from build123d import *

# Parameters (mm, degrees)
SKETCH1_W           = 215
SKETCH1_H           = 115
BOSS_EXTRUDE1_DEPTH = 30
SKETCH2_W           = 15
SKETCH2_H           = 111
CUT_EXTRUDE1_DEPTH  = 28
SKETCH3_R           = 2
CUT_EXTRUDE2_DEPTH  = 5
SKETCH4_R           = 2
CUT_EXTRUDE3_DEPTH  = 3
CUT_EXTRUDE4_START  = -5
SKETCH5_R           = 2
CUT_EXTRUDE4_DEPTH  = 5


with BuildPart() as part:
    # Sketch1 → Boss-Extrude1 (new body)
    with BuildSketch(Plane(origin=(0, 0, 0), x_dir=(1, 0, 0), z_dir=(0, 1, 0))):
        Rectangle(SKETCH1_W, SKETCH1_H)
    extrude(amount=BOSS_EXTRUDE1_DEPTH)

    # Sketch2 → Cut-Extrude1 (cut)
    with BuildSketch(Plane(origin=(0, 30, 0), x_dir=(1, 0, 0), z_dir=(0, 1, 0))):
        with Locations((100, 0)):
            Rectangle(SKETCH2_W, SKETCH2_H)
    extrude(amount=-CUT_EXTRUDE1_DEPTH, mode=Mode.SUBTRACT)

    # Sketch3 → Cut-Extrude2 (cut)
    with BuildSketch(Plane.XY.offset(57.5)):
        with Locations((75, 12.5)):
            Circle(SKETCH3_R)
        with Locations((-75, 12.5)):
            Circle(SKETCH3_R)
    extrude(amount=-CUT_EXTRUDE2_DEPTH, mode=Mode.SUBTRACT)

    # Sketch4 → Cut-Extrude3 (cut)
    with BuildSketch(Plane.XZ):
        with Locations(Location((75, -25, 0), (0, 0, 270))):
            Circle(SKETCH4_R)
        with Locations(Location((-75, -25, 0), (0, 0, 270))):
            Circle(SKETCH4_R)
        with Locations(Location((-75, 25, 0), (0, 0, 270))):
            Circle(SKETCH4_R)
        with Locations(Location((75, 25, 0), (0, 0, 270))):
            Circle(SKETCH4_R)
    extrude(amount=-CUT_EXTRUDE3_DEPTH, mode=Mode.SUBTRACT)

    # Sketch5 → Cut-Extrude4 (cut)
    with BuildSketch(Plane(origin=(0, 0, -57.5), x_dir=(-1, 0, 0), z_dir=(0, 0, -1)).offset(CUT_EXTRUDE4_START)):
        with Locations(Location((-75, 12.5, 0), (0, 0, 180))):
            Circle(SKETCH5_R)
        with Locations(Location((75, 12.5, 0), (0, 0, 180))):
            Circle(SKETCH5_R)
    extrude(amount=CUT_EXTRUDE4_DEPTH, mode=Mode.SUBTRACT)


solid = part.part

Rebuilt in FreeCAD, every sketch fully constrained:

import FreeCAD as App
import Part
import Sketcher
Q = App.Units.Quantity


def add_polygon(sketch, points):
    """Adds a closed chain of lines whose ends are joined by coincident constraints."""
    first, n = sketch.GeometryCount, len(points)
    for a, b in zip(points, points[1:] + points[:1]):
        sketch.addGeometry(Part.LineSegment(App.Vector(*a, 0), App.Vector(*b, 0)), False)
    for i in range(n):
        sketch.addConstraint(Sketcher.Constraint("Coincident", first + i, 2, first + (i + 1) % n, 1))

doc = App.newDocument("Part")
body = doc.addObject("PartDesign::Body", "Body")

# Sketch on XZ plane
sketch1 = body.newObject("Sketcher::SketchObject", "Sketch")
sketch1.AttachmentSupport = (doc.getObject("XZ_Plane"), [""])
sketch1.MapMode = "FlatFace"
add_polygon(sketch1, [(-108, -58), (-108, 58), (108, 58), (108, -58)])  # lines 0-3
sketch1.addConstraint([
    Sketcher.Constraint("Vertical", 0),
    Sketcher.Constraint("Horizontal", 1),
    Sketcher.Constraint("Vertical", 2),
    Sketcher.Constraint("Horizontal", 3),
    Sketcher.Constraint("Symmetric", 0, 2, 2, 2, -1, 1),
    Sketcher.Constraint("DistanceX", 1, 1, 1, 2, Q("215 mm")),
    Sketcher.Constraint("DistanceY", 0, 1, 0, 2, Q("115 mm")),
])
pad1 = body.newObject("PartDesign::Pad", "Pad")
pad1.Profile = sketch1
pad1.Length = 30
pad1.Reversed = True

# Sketch on XZ plane
sketch2 = body.newObject("Sketcher::SketchObject", "Sketch001")
sketch2.AttachmentSupport = (doc.getObject("XZ_Plane"), [""])
sketch2.MapMode = "FlatFace"
sketch2.AttachmentOffset = App.Placement(App.Vector(0, 0, -30), App.Rotation())
add_polygon(sketch2, [(92, -56), (92, 56), (108, 56), (108, -56)])  # lines 0-3
sketch2.addConstraint([
    Sketcher.Constraint("Vertical", 0),
    Sketcher.Constraint("Horizontal", 1),
    Sketcher.Constraint("Vertical", 2),
    Sketcher.Constraint("Horizontal", 3),
    Sketcher.Constraint("DistanceX", 1, 1, 1, 2, Q("15 mm")),
    Sketcher.Constraint("DistanceY", 0, 1, 0, 2, Q("111 mm")),
    Sketcher.Constraint("DistanceX", -1, 1, 0, 2, Q("92.5 mm")),
    Sketcher.Constraint("DistanceY", -1, 1, 0, 2, Q("55.5 mm")),
])
pocket1 = body.newObject("PartDesign::Pocket", "Pocket")
pocket1.Profile = sketch2
pocket1.Length = 28
pocket1.Reversed = True

# Sketch on XY plane
sketch3 = body.newObject("Sketcher::SketchObject", "Sketch002")
sketch3.AttachmentSupport = (doc.getObject("XY_Plane"), [""])
sketch3.MapMode = "FlatFace"
sketch3.AttachmentOffset = App.Placement(App.Vector(0, 0, 57.5), App.Rotation())
sketch3.addGeometry([
    Part.Circle(App.Vector(75, 12.5, 0), App.Vector(0, 0, 1), 2),
    Part.Circle(App.Vector(-75, 12.5, 0), App.Vector(0, 0, 1), 2),
], False)
sketch3.addConstraint([
    Sketcher.Constraint("Equal", 0, 1),
    Sketcher.Constraint("Symmetric", 0, 3, 1, 3, -2),
    Sketcher.Constraint("Diameter", 0, Q("4 mm")),
    Sketcher.Constraint("DistanceX", -1, 1, 0, 3, Q("75 mm")),
    Sketcher.Constraint("DistanceY", -1, 1, 0, 3, Q("12.5 mm")),
])
pocket2 = body.newObject("PartDesign::Pocket", "Pocket001")
pocket2.Profile = sketch3
pocket2.Length = 5

# Sketch on XZ plane
sketch4 = body.newObject("Sketcher::SketchObject", "Sketch003")
sketch4.AttachmentSupport = (doc.getObject("XZ_Plane"), [""])
sketch4.MapMode = "FlatFace"
sketch4.addGeometry([
    Part.Circle(App.Vector(75, -25, 0), App.Vector(0, 0, 1), 2),
    Part.Circle(App.Vector(-75, -25, 0), App.Vector(0, 0, 1), 2),
    Part.Circle(App.Vector(-75, 25, 0), App.Vector(0, 0, 1), 2),
    Part.Circle(App.Vector(75, 25, 0), App.Vector(0, 0, 1), 2),
], False)
sketch4.addConstraint([
    Sketcher.Constraint("Equal", 0, 1),
    Sketcher.Constraint("Equal", 1, 2),
    Sketcher.Constraint("Equal", 2, 3),
    Sketcher.Constraint("Symmetric", 0, 3, 2, 3, -1, 1),
    Sketcher.Constraint("Symmetric", 1, 3, 3, 3, -1, 1),
    Sketcher.Constraint("Symmetric", 0, 3, 1, 3, -2),
    Sketcher.Constraint("Diameter", 0, Q("4 mm")),
    Sketcher.Constraint("DistanceX", -1, 1, 0, 3, Q("75 mm")),
    Sketcher.Constraint("DistanceY", 0, 3, -1, 1, Q("25 mm")),
])
pocket3 = body.newObject("PartDesign::Pocket", "Pocket002")
pocket3.Profile = sketch4
pocket3.Length = 3

# Sketch on XY plane
sketch5 = body.newObject("Sketcher::SketchObject", "Sketch004")
sketch5.AttachmentSupport = (doc.getObject("XY_Plane"), [""])
sketch5.MapMode = "FlatFace"
sketch5.AttachmentOffset = App.Placement(App.Vector(0, 0, -52.5), App.Rotation())
sketch5.addGeometry([
    Part.Circle(App.Vector(75, 12.5, 0), App.Vector(0, 0, 1), 2),
    Part.Circle(App.Vector(-75, 12.5, 0), App.Vector(0, 0, 1), 2),
], False)
sketch5.addConstraint([
    Sketcher.Constraint("Equal", 0, 1),
    Sketcher.Constraint("Symmetric", 0, 3, 1, 3, -2),
    Sketcher.Constraint("Diameter", 0, Q("4 mm")),
    Sketcher.Constraint("DistanceX", -1, 1, 0, 3, Q("75 mm")),
    Sketcher.Constraint("DistanceY", -1, 1, 0, 3, Q("12.5 mm")),
])
pocket4 = body.newObject("PartDesign::Pocket", "Pocket003")
pocket4.Profile = sketch5
pocket4.Length = 5

doc.recompute()
